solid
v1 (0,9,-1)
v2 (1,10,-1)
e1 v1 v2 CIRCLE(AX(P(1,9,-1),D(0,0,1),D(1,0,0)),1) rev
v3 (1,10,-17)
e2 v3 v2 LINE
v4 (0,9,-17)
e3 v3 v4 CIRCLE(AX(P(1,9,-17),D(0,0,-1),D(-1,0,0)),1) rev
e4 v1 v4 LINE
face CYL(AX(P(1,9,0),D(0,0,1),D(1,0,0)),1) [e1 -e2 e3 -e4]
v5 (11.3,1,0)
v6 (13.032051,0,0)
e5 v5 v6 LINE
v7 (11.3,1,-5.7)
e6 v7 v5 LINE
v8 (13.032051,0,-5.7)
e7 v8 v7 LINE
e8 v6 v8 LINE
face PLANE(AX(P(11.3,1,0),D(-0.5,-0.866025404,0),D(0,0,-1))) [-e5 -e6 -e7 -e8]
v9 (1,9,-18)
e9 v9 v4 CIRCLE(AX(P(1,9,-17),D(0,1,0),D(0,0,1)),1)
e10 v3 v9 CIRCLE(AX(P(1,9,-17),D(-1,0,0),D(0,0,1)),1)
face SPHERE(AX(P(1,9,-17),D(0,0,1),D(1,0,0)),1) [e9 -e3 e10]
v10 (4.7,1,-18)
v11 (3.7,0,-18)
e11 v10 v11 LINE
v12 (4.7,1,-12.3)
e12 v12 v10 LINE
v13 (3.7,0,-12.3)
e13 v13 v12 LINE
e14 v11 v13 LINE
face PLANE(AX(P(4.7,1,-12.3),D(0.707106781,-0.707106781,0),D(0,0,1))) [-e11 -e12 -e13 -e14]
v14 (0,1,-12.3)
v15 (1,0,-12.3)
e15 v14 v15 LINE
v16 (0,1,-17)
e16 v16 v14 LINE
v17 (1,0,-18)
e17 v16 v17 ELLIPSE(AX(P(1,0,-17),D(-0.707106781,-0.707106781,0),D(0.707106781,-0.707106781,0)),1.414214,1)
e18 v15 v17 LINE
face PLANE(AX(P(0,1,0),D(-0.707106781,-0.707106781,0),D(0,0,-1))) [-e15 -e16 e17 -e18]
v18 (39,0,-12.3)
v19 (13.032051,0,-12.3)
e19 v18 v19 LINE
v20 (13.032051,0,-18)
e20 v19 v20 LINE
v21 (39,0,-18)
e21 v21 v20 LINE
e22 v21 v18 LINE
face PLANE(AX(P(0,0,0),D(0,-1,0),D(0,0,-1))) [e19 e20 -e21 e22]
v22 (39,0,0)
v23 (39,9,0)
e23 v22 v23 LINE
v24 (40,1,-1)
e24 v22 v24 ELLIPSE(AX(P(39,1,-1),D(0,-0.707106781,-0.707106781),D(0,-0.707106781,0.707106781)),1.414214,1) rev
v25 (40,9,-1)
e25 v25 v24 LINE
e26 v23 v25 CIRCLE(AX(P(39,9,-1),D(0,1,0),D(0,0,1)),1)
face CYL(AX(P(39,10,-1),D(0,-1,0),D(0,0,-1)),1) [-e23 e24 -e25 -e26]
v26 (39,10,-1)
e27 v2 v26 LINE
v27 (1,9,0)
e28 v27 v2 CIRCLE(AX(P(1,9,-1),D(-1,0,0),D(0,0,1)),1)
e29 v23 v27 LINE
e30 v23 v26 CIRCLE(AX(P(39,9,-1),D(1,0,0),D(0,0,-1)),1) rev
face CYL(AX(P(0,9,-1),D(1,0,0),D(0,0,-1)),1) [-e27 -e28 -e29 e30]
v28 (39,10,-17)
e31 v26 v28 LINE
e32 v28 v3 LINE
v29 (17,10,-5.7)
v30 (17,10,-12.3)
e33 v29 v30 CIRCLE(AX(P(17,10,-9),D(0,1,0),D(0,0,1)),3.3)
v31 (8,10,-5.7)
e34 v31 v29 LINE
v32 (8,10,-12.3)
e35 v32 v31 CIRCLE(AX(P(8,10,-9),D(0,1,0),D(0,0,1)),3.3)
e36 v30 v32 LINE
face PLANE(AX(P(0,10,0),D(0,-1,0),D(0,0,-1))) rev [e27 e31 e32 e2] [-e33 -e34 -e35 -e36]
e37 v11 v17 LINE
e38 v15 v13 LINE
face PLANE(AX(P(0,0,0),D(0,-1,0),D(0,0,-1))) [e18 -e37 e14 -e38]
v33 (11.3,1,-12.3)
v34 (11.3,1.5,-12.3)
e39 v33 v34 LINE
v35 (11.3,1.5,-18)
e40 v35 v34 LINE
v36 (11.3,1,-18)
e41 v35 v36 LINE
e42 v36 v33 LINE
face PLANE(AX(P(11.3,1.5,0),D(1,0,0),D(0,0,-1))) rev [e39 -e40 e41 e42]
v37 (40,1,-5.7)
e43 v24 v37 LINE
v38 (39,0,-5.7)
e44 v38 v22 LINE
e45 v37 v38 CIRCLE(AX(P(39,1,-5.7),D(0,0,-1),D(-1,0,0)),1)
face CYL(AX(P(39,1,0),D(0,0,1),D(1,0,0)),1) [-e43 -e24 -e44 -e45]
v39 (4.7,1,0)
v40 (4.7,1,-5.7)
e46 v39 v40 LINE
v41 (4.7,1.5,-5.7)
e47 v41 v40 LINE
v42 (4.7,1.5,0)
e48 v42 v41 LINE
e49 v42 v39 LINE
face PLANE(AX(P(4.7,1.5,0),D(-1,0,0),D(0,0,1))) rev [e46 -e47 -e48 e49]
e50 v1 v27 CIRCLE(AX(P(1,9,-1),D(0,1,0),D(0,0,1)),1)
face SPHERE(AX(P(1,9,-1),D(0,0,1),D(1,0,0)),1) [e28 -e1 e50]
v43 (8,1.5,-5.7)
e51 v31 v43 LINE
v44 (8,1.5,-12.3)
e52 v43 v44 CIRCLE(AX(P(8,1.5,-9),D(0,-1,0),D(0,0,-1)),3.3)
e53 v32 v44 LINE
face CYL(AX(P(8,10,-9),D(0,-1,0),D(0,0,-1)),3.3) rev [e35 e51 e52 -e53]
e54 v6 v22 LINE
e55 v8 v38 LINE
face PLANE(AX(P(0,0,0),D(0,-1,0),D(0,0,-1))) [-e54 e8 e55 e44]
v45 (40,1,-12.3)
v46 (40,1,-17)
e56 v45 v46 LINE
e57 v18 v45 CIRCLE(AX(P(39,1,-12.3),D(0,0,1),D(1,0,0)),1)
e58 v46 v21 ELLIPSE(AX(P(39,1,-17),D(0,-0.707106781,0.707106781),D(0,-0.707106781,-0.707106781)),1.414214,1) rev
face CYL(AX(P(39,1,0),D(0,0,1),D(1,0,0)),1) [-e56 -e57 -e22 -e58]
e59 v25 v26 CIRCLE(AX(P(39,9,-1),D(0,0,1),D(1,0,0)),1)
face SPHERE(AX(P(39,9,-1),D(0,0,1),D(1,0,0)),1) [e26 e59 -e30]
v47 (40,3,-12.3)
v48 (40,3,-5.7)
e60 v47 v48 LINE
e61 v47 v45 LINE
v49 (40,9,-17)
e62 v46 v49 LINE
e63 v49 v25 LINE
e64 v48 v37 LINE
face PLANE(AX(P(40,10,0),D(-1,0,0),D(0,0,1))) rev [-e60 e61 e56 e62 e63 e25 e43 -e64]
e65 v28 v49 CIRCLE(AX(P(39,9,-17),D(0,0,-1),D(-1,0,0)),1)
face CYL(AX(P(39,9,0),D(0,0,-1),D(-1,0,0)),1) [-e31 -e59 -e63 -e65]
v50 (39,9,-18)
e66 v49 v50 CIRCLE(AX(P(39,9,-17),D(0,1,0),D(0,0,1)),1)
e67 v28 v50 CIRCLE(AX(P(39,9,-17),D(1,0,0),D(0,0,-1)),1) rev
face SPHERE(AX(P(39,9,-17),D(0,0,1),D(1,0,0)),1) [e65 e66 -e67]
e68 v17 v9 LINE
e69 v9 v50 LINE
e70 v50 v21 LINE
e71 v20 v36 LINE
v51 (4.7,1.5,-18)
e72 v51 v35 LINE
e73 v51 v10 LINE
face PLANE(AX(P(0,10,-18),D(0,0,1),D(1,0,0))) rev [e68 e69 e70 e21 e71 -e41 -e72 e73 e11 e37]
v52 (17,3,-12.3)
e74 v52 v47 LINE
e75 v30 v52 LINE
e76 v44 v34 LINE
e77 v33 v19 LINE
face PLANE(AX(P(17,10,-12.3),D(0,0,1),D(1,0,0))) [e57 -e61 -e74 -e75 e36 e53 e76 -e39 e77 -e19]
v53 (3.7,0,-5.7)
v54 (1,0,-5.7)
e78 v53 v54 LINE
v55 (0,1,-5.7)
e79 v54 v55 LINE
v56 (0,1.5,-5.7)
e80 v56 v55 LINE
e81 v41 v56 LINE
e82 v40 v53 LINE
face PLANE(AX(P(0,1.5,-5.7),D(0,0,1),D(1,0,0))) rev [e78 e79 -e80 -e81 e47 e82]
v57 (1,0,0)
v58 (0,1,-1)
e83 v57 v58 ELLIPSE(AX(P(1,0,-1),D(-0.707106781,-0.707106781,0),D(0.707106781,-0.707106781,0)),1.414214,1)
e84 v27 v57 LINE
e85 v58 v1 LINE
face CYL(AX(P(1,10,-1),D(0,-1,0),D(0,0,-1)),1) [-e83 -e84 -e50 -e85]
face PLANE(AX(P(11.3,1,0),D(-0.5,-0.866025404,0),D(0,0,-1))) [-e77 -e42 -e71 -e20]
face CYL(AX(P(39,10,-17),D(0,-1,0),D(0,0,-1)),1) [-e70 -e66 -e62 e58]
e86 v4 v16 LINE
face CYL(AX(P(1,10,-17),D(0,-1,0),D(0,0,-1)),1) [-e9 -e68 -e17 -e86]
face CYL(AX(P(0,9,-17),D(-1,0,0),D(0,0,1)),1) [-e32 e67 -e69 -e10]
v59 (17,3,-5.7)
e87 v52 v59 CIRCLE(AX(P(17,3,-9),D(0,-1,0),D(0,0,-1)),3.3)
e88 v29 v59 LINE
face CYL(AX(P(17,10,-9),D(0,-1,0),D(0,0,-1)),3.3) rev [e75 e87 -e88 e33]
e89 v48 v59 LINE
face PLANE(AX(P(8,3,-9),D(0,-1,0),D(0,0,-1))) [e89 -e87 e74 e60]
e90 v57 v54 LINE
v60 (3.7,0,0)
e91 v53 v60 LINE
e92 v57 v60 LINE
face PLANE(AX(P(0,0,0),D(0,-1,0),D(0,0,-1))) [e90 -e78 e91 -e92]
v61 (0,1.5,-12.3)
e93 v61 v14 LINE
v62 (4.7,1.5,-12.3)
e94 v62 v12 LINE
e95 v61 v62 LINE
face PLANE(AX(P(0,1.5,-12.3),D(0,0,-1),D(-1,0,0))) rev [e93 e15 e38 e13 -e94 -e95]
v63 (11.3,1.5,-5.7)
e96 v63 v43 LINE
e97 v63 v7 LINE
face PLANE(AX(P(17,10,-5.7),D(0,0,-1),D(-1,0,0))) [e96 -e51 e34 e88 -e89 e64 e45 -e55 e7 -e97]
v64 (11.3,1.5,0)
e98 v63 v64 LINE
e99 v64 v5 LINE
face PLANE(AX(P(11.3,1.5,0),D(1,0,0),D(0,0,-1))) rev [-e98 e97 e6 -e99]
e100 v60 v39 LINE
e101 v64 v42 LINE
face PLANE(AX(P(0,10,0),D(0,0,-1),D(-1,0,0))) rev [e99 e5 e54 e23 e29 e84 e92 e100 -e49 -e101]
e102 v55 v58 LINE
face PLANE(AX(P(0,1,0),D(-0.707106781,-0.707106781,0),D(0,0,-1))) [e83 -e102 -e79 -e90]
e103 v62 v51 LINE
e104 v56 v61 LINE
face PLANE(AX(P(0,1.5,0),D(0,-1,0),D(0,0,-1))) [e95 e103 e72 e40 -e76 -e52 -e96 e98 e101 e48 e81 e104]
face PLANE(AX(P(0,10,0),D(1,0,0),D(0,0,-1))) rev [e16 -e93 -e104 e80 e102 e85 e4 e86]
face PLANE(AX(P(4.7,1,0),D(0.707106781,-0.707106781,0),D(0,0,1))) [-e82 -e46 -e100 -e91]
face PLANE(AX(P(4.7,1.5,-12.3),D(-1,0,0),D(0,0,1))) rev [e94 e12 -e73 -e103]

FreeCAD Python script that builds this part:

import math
import FreeCAD as App
import Part
import Sketcher

V = App.Vector
Q = App.Units.Quantity


def edges_at(feature, points):
    """Names of the edges that pass closest to the given points."""
    edges = feature.Shape.Edges
    near = lambda p: min(range(len(edges)), key=lambda i: edges[i].distToShape(Part.Vertex(*p))[0])
    return sorted({f"Edge{near(p) + 1}" for p in points})


def add_polygon(sketch, points):
    """Adds a closed chain of lines whose ends are joined by coincident constraints."""
    first, n = sketch.GeometryCount, len(points)
    for a, b in zip(points, points[1:] + points[:1]):
        sketch.addGeometry(Part.LineSegment(App.Vector(*a, 0), App.Vector(*b, 0)), False)
    for i in range(n):
        sketch.addConstraint(Sketcher.Constraint("Coincident", first + i, 2, first + (i + 1) % n, 1))

doc = App.newDocument("Part")
params = doc.addObject("Spreadsheet::Sheet", "Params")
for row, (alias, value) in enumerate([
    ("sketch1_radius", "3.3 mm"),
    ("sketch1_width", "40 mm"),
    ("sketch1_width2", "9 mm"),
    ("sketch1_height", "18 mm"),
    ("pad1_length", "10 mm"),
    ("sketch2_radius", "3.3 mm"),
    ("sketch2_width", "32 mm"),
    ("pocket1_length", "3 mm"),
    ("sketch3_height", "18 mm"),
    ("sketch3_width", "4.7 mm"),
    ("sketch3_width2", "6.6 mm"),
    ("pocket2_length", "1.5 mm"),
    ("chamfer_size", "1 mm"),
    ("chamfer2_size", "1 mm"),
    ("chamfer2_size2", "1.732051 mm"),
    ("chamfer3_size", "1 mm"),
    ("chamfer3_size2", "1.732051 mm"),
    ("fillet_radius", "1 mm"),
], start=1):
    params.set(f"A{row}", alias)
    params.set(f"B{row}", "=" + value)
    params.setAlias(f"B{row}", alias)

body = doc.addObject("PartDesign::Body", "Body")

# Sketch on XZ plane
sketch1 = doc.addObject("Sketcher::SketchObject", "Sketch")
body.addObject(sketch1)
sketch1.AttachmentSupport = (doc.XZ_Plane, [""])
sketch1.MapMode = "FlatFace"
add_polygon(sketch1, [(0, -18), (0, 0), (40, 0), (40, -18)])  # lines 0-3
sketch1.addGeometry(Part.ArcOfCircle(Part.Circle(V(17, -9, 0), V(0, 0, 1), 3.3), math.radians(-90), math.radians(90)), False)  # 4
sketch1.addGeometry(Part.LineSegment(V(17, -5.7, 0), V(8, -5.7, 0)), False)  # 5
sketch1.addGeometry(Part.ArcOfCircle(Part.Circle(V(8, -9, 0), V(0, 0, 1), 3.3), math.radians(90), math.radians(270)), False)  # 6
sketch1.addGeometry(Part.LineSegment(V(8, -12.3, 0), V(17, -12.3, 0)), False)  # 7
sketch1.addConstraint([
    Sketcher.Constraint("Tangent", 4, 2, 5, 1),
    Sketcher.Constraint("Tangent", 5, 2, 6, 1),
    Sketcher.Constraint("Tangent", 6, 2, 7, 1),
    Sketcher.Constraint("Tangent", 7, 2, 4, 1),
    Sketcher.Constraint("Vertical", 0),
    Sketcher.Constraint("Horizontal", 1),
    Sketcher.Constraint("Vertical", 2),
    Sketcher.Constraint("Horizontal", 3),
    Sketcher.Constraint("Horizontal", 5),
    Sketcher.Constraint("Horizontal", 7),
    Sketcher.Constraint("Coincident", 0, 2, -1, 1),
    Sketcher.Constraint("Radius", 4, Q("3.3 mm")),
    Sketcher.Constraint("DistanceX", 1, 1, 1, 2, Q("40 mm")),
    Sketcher.Constraint("DistanceX", 5, 2, 5, 1, Q("9 mm")),
    Sketcher.Constraint("DistanceY", 0, 1, 0, 2, Q("18 mm")),
    Sketcher.Constraint("DistanceX", -1, 1, 4, 3, Q("17 mm")),
    Sketcher.Constraint("DistanceY", 4, 3, -1, 1, Q("9 mm")),
])
sketch1.setExpression("Constraints[15]", "Params.sketch1_radius")
sketch1.setExpression("Constraints[16]", "Params.sketch1_width")
sketch1.setExpression("Constraints[17]", "Params.sketch1_width2")
sketch1.setExpression("Constraints[18]", "Params.sketch1_height")
pad1 = doc.addObject("PartDesign::Pad", "Pad")
body.addObject(pad1)
pad1.Profile = sketch1
pad1.setExpression("Length", "Params.pad1_length")
pad1.Reversed = True

# Sketch on XZ plane
sketch2 = doc.addObject("Sketcher::SketchObject", "Sketch001")
body.addObject(sketch2)
sketch2.AttachmentSupport = (doc.XZ_Plane, [""])
sketch2.MapMode = "FlatFace"
sketch2.addGeometry([
    Part.LineSegment(V(40, -12.3, 0), V(40, -5.7, 0)),
    Part.LineSegment(V(40, -5.7, 0), V(8, -5.7, 0)),
    Part.ArcOfCircle(Part.Circle(V(8, -9, 0), V(0, 0, 1), 3.3), math.radians(90), math.radians(270)),
    Part.LineSegment(V(8, -12.3, 0), V(40, -12.3, 0)),
], False)
sketch2.addConstraint([
    Sketcher.Constraint("Coincident", 0, 2, 1, 1),
    Sketcher.Constraint("Tangent", 1, 2, 2, 1),
    Sketcher.Constraint("Tangent", 2, 2, 3, 1),
    Sketcher.Constraint("Coincident", 3, 2, 0, 1),
    Sketcher.Constraint("Vertical", 0),
    Sketcher.Constraint("Horizontal", 1),
    Sketcher.Constraint("Horizontal", 3),
    Sketcher.Constraint("Radius", 2, Q("3.3 mm")),
    Sketcher.Constraint("DistanceX", 1, 2, 1, 1, Q("32 mm")),
    Sketcher.Constraint("DistanceX", -1, 1, 2, 3, Q("8 mm")),
    Sketcher.Constraint("DistanceY", 2, 3, -1, 1, Q("9 mm")),
])
sketch2.setExpression("Constraints[7]", "Params.sketch2_radius")
sketch2.setExpression("Constraints[8]", "Params.sketch2_width")
pocket1 = doc.addObject("PartDesign::Pocket", "Pocket")
body.addObject(pocket1)
pocket1.Profile = sketch2
pocket1.setExpression("Length", "Params.pocket1_length")

# Sketch on XZ plane
sketch3 = doc.addObject("Sketcher::SketchObject", "Sketch002")
body.addObject(sketch3)
sketch3.AttachmentSupport = (doc.XZ_Plane, [""])
sketch3.MapMode = "FlatFace"
add_polygon(sketch3, [(4.7, -5.7), (0, -5.7), (0, -12.3), (4.7, -12.3), (4.7, -18), (11.3, -18), (11.3, 0), (4.7, 0)])  # lines 0-7
sketch3.addConstraint([
    Sketcher.Constraint("Horizontal", 0),
    Sketcher.Constraint("Vertical", 1),
    Sketcher.Constraint("Horizontal", 2),
    Sketcher.Constraint("Vertical", 3),
    Sketcher.Constraint("Horizontal", 4),
    Sketcher.Constraint("Vertical", 5),
    Sketcher.Constraint("Horizontal", 6),
    Sketcher.Constraint("Vertical", 7),
    Sketcher.Constraint("PointOnObject", 0, 2, -2),
    Sketcher.Constraint("PointOnObject", 5, 2, -1),
    Sketcher.Constraint("Vertical", 3, 2, 6, 2),
    Sketcher.Constraint("Equal", 6, 1),
    Sketcher.Constraint("Equal", 3, 7),
    Sketcher.Constraint("DistanceY", 5, 1, 5, 2, Q("18 mm")),
    Sketcher.Constraint("DistanceX", 0, 2, 0, 1, Q("4.7 mm")),
    Sketcher.Constraint("DistanceX", 4, 1, 4, 2, Q("6.6 mm")),
])
sketch3.setExpression("Constraints[21]", "Params.sketch3_height")
sketch3.setExpression("Constraints[22]", "Params.sketch3_width")
sketch3.setExpression("Constraints[23]", "Params.sketch3_width2")
pocket2 = doc.addObject("PartDesign::Pocket", "Pocket001")
body.addObject(pocket2)
pocket2.Profile = sketch3
pocket2.setExpression("Length", "Params.pocket2_length")
doc.recompute()

chamfer = doc.addObject("PartDesign::Chamfer", "Chamfer")
body.addObject(chamfer)
chamfer.Base = (pocket2, edges_at(pocket2, [
    (0, 0, -15.15),
    (0, 0, -2.85),
    (4.7, 0, -2.85),
    (4.7, 0, -15.15),
]))
chamfer.setExpression("Size", "Params.chamfer_size")
doc.recompute()

chamfer2 = doc.addObject("PartDesign::Chamfer", "Chamfer001")
body.addObject(chamfer2)
chamfer2.Base = (chamfer, edges_at(chamfer, [(11.3, 0, -2.85)]))
chamfer2.ChamferType = "Two distances"
chamfer2.setExpression("Size", "Params.chamfer2_size")
chamfer2.setExpression("Size2", "Params.chamfer2_size2")
doc.recompute()

chamfer3 = doc.addObject("PartDesign::Chamfer", "Chamfer002")
body.addObject(chamfer3)
chamfer3.Base = (chamfer2, edges_at(chamfer2, [(11.3, 0, -15.15)]))
chamfer3.ChamferType = "Two distances"
chamfer3.setExpression("Size", "Params.chamfer3_size")
chamfer3.setExpression("Size2", "Params.chamfer3_size2")
doc.recompute()

fillet = doc.addObject("PartDesign::Fillet", "Fillet")
body.addObject(fillet)
fillet.Base = (chamfer3, edges_at(chamfer3, [
    (20, 10, -18),
    (40, 10, -9),
    (20, 10, 0),
    (0, 10, -9),
    (40, 5, 0),
    (40, 5, -18),
    (0, 5.5, -18),
    (0, 5.5, 0),
    (40, 0, -15.15),
    (40, 0, -2.85),
]))
fillet.setExpression("Radius", "Params.fillet_radius")

doc.recompute()
